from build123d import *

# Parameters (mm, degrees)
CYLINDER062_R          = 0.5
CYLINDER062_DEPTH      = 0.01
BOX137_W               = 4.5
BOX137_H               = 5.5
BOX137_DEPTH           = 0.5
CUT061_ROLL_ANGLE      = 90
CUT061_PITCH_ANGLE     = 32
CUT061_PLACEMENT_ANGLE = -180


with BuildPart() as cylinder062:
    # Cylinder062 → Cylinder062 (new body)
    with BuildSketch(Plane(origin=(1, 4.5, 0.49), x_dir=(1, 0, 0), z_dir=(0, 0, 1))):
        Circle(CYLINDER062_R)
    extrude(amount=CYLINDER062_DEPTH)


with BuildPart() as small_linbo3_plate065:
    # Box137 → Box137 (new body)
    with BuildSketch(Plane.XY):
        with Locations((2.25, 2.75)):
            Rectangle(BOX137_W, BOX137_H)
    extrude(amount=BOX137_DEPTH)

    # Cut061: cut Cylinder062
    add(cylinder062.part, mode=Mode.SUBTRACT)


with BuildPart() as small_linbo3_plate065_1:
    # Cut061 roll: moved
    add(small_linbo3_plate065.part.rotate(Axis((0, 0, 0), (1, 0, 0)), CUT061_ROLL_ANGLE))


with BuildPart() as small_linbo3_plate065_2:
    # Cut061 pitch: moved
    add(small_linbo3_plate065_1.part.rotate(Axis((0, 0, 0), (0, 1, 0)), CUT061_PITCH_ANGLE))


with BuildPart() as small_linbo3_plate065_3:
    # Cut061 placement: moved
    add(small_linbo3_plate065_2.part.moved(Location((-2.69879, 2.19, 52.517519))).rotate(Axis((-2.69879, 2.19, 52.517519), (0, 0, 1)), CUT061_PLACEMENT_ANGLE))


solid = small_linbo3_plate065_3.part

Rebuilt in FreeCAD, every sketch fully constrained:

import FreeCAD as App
import Part
import Sketcher
from FreeCAD import Vector
Q = App.Units.Quantity


def add_polygon(sketch, points):
    """Adds a closed chain of lines whose ends are joined by coincident constraints."""
    first, n = sketch.GeometryCount, len(points)
    for a, b in zip(points, points[1:] + points[:1]):
        sketch.addGeometry(Part.LineSegment(App.Vector(*a, 0), App.Vector(*b, 0)), False)
    for i in range(n):
        sketch.addConstraint(Sketcher.Constraint("Coincident", first + i, 2, first + (i + 1) % n, 1))

doc = App.newDocument("Part")
body = doc.addObject("PartDesign::Body", "Body")

# Sketch on XY plane
sketch1 = doc.addObject("Sketcher::SketchObject", "Sketch")
body.addObject(sketch1)
sketch1.AttachmentSupport = (doc.XY_Plane, [""])
sketch1.MapMode = "FlatFace"
sketch1.AttachmentOffset = App.Placement(Vector(0, 0, 0.49), App.Rotation())
sketch1.addGeometry(Part.Circle(Vector(1, 4.5, 0), Vector(0, 0, 1), 0.5), False)
sketch1.addConstraint(Sketcher.Constraint("Diameter", 0, Q("1 mm")))
sketch1.addConstraint(Sketcher.Constraint("DistanceX", -1, 1, 0, 3, Q("1 mm")))
sketch1.addConstraint(Sketcher.Constraint("DistanceY", -1, 1, 0, 3, Q("4.5 mm")))
pad1 = doc.addObject("PartDesign::Pad", "Pad")
body.addObject(pad1)
pad1.Profile = sketch1
pad1.Length = 0.01
body2 = doc.addObject("PartDesign::Body", "Body001")

# Sketch on XY plane
sketch2 = doc.addObject("Sketcher::SketchObject", "Sketch001")
body2.addObject(sketch2)
sketch2.AttachmentSupport = (doc.getObject("XY_Plane001"), [""])
sketch2.MapMode = "FlatFace"
add_polygon(sketch2, [(0, 5.5), (0, 0), (4.5, 0), (4.5, 5.5)])  # lines 0-3
sketch2.addConstraint(Sketcher.Constraint("Vertical", 0))
sketch2.addConstraint(Sketcher.Constraint("Horizontal", 1))
sketch2.addConstraint(Sketcher.Constraint("Vertical", 2))
sketch2.addConstraint(Sketcher.Constraint("Horizontal", 3))
sketch2.addConstraint(Sketcher.Constraint("Coincident", 0, 2, -1, 1))
sketch2.addConstraint(Sketcher.Constraint("DistanceX", 1, 1, 1, 2, Q("4.5 mm")))
sketch2.addConstraint(Sketcher.Constraint("DistanceY", 0, 2, 0, 1, Q("5.5 mm")))
pad2 = doc.addObject("PartDesign::Pad", "Pad001")
body2.addObject(pad2)
pad2.Profile = sketch2
pad2.Length = 0.5
doc.recompute()

boolean = doc.addObject("PartDesign::Boolean", "Boolean")
body2.addObject(boolean)
boolean.Type = "Cut"
boolean.addObjects([body])
body3 = doc.addObject("PartDesign::Body", "Body002")
doc.recompute()

body2.Placement = App.Placement(Vector(0, 0, 0), App.Rotation(Vector(1, 0, 0), 90))
boolean2 = doc.addObject("PartDesign::Boolean", "Boolean001")
body3.addObject(boolean2)
boolean2.Type = "Fuse"
boolean2.addObjects([body2])
body4 = doc.addObject("PartDesign::Body", "Body003")
doc.recompute()

body3.Placement = App.Placement(Vector(0, 0, 0), App.Rotation(Vector(0, 1, 0), 32))
boolean3 = doc.addObject("PartDesign::Boolean", "Boolean002")
body4.addObject(boolean3)
boolean3.Type = "Fuse"
boolean3.addObjects([body3])
body5 = doc.addObject("PartDesign::Body", "Body004")
doc.recompute()

body4.Placement = App.Placement(Vector(-2.69879, 2.19, 52.517519), App.Rotation(Vector(0, 0, 1), 180))
boolean4 = doc.addObject("PartDesign::Boolean", "Boolean003")
body5.addObject(boolean4)
boolean4.Type = "Fuse"
boolean4.addObjects([body4])

doc.recompute()
